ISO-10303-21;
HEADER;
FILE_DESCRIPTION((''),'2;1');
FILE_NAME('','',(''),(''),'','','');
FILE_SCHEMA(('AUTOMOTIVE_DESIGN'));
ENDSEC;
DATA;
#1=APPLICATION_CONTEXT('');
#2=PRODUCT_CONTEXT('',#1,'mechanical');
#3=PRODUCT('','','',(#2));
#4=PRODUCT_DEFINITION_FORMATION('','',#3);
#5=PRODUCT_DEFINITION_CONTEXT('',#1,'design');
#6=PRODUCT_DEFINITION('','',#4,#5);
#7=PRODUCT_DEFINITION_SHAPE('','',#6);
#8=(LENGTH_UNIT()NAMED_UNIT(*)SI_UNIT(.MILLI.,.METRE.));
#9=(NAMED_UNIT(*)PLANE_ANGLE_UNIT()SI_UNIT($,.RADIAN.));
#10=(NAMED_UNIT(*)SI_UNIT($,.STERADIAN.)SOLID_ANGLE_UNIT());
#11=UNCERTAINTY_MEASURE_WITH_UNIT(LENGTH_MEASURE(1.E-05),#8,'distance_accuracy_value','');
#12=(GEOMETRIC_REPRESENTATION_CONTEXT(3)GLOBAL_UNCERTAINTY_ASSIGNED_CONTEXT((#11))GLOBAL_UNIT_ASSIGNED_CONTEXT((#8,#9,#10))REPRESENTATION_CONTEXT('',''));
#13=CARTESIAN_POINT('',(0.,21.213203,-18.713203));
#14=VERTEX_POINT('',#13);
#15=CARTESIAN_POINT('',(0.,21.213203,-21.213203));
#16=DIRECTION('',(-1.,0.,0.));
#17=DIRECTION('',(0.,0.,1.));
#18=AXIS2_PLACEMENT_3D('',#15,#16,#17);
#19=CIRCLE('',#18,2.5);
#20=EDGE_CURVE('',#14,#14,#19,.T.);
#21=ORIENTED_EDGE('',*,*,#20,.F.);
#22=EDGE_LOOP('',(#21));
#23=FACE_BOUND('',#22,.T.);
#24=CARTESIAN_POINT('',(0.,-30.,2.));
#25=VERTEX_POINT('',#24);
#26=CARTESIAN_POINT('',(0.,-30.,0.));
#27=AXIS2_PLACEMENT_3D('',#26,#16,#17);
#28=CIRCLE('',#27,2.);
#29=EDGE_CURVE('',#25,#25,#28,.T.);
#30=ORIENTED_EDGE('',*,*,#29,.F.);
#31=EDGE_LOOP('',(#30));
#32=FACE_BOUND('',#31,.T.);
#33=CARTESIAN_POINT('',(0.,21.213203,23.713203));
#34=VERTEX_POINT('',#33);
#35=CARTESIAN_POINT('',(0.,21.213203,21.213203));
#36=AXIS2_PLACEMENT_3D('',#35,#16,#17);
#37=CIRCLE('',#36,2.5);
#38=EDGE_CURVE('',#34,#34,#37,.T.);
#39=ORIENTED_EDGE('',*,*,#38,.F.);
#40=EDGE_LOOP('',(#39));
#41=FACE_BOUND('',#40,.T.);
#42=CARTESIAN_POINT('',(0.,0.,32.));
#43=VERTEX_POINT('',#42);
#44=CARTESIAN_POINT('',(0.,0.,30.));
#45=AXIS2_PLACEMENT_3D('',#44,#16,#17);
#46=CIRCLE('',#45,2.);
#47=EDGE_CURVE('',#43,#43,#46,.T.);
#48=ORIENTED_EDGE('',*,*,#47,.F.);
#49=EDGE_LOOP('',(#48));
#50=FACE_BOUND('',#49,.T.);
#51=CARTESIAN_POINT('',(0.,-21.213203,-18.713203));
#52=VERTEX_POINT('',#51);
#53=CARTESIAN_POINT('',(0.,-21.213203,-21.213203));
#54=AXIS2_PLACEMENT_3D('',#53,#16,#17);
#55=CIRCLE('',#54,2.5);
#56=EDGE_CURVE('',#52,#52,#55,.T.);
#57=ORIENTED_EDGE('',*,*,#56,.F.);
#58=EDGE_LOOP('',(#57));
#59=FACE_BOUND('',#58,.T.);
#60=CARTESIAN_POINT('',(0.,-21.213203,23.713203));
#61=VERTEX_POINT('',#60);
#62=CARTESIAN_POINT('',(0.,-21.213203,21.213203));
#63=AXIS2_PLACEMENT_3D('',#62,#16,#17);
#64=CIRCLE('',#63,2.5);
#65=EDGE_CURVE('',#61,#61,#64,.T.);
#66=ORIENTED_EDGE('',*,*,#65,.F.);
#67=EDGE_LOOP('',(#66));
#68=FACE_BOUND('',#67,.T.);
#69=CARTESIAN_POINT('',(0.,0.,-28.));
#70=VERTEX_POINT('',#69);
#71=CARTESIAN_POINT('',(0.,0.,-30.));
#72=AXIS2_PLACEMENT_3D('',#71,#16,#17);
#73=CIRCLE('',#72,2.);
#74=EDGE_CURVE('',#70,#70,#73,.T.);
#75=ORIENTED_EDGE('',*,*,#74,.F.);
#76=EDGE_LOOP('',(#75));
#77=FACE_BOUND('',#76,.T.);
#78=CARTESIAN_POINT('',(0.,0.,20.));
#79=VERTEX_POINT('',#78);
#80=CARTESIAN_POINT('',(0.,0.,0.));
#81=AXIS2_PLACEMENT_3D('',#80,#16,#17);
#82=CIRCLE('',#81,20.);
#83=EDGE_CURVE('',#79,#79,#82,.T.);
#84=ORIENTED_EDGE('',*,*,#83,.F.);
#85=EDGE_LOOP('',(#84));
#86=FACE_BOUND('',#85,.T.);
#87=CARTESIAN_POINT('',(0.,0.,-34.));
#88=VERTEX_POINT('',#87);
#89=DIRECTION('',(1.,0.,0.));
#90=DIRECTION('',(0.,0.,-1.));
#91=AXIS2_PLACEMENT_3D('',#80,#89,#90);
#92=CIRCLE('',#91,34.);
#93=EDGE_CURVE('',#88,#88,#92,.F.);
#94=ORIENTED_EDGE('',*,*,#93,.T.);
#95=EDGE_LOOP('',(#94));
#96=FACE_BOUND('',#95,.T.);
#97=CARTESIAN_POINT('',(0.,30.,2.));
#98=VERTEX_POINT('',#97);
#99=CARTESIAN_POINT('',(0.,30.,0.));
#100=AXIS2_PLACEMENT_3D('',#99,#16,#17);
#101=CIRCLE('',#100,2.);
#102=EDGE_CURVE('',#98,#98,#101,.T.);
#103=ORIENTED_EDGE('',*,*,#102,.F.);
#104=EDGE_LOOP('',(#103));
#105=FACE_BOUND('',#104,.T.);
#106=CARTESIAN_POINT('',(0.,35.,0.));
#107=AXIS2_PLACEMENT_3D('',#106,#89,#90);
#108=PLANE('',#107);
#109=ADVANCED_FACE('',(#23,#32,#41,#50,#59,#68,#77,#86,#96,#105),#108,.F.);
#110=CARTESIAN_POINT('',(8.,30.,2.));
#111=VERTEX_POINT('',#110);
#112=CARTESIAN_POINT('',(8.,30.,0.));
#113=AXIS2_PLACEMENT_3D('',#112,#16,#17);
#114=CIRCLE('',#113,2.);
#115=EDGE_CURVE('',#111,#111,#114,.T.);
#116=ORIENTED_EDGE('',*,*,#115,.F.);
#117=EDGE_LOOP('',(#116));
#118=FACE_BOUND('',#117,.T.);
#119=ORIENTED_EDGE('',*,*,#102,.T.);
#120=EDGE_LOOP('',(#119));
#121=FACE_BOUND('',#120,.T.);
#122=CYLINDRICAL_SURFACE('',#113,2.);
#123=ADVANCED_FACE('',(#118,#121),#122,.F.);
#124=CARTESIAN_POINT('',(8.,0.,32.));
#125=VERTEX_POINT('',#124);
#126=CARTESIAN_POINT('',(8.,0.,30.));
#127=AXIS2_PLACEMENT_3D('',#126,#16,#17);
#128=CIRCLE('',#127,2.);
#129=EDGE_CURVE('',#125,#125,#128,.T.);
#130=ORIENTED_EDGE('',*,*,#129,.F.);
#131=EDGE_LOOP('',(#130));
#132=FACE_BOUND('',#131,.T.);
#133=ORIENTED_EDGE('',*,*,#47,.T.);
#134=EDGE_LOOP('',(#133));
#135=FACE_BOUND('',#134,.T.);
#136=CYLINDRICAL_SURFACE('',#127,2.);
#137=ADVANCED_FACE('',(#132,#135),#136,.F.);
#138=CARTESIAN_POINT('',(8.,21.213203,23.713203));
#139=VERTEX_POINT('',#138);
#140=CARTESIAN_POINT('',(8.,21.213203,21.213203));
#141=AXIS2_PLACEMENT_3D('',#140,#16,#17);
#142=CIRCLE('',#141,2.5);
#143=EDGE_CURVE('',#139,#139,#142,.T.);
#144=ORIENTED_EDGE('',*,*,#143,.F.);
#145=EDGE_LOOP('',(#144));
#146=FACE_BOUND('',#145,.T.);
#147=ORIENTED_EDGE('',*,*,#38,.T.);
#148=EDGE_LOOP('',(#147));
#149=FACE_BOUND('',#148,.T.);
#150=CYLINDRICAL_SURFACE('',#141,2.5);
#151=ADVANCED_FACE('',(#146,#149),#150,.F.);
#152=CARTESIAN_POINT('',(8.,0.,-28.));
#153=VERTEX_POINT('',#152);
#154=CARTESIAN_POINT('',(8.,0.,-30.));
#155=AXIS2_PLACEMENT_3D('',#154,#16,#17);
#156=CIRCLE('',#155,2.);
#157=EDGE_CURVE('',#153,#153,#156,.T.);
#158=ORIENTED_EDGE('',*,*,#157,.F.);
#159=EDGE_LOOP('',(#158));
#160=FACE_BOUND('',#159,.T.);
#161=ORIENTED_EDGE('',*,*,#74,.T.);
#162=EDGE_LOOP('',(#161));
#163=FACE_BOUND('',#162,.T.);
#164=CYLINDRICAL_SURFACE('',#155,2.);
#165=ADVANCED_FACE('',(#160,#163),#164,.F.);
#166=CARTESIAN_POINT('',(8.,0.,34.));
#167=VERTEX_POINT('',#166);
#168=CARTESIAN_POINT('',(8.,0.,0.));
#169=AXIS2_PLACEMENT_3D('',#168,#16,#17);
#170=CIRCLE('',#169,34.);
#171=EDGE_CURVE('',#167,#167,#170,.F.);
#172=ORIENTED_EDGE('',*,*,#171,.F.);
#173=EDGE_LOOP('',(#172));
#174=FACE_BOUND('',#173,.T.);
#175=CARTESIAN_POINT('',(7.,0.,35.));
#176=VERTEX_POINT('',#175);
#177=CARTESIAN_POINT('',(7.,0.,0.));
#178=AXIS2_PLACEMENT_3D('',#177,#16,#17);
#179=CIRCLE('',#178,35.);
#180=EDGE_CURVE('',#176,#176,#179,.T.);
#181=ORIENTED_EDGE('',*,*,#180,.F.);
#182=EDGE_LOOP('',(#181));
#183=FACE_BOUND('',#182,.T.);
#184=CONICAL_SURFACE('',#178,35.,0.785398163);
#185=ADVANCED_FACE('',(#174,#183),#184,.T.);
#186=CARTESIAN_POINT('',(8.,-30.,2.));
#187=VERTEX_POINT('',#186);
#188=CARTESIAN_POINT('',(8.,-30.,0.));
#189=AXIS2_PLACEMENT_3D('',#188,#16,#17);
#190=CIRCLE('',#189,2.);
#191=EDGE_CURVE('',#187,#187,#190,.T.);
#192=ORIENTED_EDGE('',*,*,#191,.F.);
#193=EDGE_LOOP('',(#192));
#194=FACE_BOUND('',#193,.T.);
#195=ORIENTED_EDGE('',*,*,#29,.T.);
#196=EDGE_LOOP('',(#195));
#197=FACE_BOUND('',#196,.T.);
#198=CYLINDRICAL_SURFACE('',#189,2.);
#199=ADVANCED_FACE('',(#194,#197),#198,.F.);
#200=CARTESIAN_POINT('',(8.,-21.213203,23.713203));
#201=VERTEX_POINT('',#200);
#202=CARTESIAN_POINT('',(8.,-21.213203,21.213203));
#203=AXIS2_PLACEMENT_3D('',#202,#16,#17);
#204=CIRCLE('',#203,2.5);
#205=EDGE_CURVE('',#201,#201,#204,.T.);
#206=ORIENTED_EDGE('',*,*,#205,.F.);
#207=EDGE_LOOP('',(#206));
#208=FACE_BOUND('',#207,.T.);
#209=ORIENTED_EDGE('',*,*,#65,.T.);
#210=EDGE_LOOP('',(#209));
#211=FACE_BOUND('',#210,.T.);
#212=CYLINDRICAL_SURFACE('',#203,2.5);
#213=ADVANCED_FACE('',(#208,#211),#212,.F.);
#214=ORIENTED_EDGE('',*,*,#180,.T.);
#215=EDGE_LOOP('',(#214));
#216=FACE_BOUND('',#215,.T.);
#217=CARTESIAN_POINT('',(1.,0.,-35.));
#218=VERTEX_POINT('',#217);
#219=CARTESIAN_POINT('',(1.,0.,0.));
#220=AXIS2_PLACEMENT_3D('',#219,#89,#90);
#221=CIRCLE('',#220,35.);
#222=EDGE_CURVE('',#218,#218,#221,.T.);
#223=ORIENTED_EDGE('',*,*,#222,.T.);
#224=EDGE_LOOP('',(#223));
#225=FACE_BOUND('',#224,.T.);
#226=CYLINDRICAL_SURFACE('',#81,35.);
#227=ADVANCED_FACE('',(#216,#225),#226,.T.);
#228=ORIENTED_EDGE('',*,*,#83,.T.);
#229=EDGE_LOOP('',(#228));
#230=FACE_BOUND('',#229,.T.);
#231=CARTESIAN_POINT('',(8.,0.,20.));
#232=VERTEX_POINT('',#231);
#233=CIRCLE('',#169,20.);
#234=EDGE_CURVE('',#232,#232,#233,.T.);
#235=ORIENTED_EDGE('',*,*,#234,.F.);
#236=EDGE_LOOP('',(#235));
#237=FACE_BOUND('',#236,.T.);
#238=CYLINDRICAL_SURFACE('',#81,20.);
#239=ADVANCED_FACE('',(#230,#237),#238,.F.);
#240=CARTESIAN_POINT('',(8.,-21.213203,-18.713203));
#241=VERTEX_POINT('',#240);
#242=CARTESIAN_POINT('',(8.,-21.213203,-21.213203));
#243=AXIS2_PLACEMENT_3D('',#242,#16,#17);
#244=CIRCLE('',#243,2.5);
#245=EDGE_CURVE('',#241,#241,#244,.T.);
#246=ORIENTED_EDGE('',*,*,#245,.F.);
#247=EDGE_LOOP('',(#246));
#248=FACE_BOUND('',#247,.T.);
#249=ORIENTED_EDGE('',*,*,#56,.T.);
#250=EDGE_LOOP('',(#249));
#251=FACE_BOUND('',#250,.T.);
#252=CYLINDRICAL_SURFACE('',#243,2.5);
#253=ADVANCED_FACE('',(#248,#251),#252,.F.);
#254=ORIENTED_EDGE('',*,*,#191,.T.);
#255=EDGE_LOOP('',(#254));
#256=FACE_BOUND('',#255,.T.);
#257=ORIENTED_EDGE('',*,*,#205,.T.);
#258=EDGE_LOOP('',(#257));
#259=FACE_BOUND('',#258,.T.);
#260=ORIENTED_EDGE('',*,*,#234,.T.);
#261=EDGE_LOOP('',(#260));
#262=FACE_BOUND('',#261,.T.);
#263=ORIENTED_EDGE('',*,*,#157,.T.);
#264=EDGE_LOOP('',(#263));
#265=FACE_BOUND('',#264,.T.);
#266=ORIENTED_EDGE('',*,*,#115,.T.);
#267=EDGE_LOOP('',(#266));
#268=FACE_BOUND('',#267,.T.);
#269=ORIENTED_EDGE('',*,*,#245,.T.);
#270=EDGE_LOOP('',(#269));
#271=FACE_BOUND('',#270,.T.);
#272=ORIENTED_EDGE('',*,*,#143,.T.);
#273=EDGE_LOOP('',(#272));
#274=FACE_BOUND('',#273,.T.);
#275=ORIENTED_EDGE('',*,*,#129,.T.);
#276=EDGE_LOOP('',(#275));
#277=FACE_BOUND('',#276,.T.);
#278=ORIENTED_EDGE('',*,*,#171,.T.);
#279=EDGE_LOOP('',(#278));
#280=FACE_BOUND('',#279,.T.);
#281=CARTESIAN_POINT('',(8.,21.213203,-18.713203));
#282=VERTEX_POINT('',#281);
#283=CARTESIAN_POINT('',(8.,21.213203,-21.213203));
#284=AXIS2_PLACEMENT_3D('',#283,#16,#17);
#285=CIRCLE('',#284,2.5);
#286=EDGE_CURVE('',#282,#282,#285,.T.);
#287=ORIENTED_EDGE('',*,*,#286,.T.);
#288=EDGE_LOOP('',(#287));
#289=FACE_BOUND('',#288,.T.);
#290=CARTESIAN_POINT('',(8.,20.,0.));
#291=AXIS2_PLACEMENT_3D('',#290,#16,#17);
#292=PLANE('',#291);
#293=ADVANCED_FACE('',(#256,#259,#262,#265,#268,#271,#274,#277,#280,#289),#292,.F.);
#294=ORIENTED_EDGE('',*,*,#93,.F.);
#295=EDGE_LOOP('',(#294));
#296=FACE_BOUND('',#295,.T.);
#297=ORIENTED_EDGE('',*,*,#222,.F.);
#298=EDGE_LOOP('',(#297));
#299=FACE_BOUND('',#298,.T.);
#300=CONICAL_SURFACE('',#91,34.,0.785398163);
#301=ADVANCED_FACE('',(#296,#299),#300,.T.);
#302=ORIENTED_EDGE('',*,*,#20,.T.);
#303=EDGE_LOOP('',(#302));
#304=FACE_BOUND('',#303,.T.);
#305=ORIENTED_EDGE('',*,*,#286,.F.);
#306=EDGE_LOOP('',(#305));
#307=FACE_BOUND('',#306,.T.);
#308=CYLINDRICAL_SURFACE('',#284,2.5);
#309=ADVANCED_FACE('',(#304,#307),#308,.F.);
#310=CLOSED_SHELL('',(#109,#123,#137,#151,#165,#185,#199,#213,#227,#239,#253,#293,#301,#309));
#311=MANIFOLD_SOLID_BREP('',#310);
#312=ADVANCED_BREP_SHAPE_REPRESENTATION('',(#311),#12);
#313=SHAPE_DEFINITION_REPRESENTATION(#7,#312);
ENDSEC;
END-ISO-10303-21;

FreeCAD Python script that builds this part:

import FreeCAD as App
import Part
import Sketcher

V = App.Vector


def edges_at(feature, points):
    """Names of the edges that pass closest to the given points."""
    edges = feature.Shape.Edges
    near = lambda p: min(range(len(edges)), key=lambda i: edges[i].distToShape(Part.Vertex(*p))[0])
    return sorted({f"Edge{near(p) + 1}" for p in points})


def add_polygon(sketch, points):
    """Adds a closed chain of lines whose ends are joined by coincident constraints."""
    first, n = sketch.GeometryCount, len(points)
    for a, b in zip(points, points[1:] + points[:1]):
        sketch.addGeometry(Part.LineSegment(App.Vector(*a, 0), App.Vector(*b, 0)), False)
    for i in range(n):
        sketch.addConstraint(Sketcher.Constraint("Coincident", first + i, 2, first + (i + 1) % n, 1))

doc = App.newDocument("Part")
body = doc.addObject("PartDesign::Body", "Body")

# Sketch on XY plane
sketch1 = body.newObject("Sketcher::SketchObject", "Sketch")
sketch1.AttachmentSupport = (doc.getObject("XY_Plane"), [""])
sketch1.MapMode = "FlatFace"
add_polygon(sketch1, [(0, 35), (0, 20), (8, 20), (8, 35)])  # lines 0-3
sketch1.addConstraint([
    Sketcher.Constraint("Vertical", 0),
    Sketcher.Constraint("Horizontal", 1),
    Sketcher.Constraint("Vertical", 2),
    Sketcher.Constraint("Horizontal", 3),
    Sketcher.Constraint("PointOnObject", 0, 2, -2),
    Sketcher.Constraint("DistanceX", 1, 1, 1, 2, 8.0),
    Sketcher.Constraint("DistanceY", 0, 2, 0, 1, 15.0),
    Sketcher.Constraint("DistanceY", -1, 1, 0, 2, 20.0),
])
revolution = body.newObject("PartDesign::Revolution", "Revolution")
revolution.Profile = sketch1
revolution.ReferenceAxis = (sketch1, ["H_Axis"])
revolution.Angle = 360
doc.recompute()

chamfer = body.newObject("PartDesign::Chamfer", "Chamfer")
chamfer.Base = (revolution, edges_at(revolution, [(0, 0, -35), (8, 0, -35)]))
chamfer.Size = 1

# Sketch on YZ plane
sketch2 = body.newObject("Sketcher::SketchObject", "Sketch001")
sketch2.AttachmentSupport = (doc.getObject("YZ_Plane"), [""])
sketch2.MapMode = "FlatFace"
sketch2.addGeometry([
    Part.Circle(V(30, 0, 0), V(0, 0, 1), 2),  # 0
    Part.Circle(V(21.2, 21.2, 0), V(0, 0, 1), 2.5),  # 1
    Part.Circle(V(0, 30, 0), V(0, 0, 1), 2),  # 2
    Part.Circle(V(-21.2, 21.2, 0), V(0, 0, 1), 2.5),  # 3
    Part.Circle(V(-30, 0, 0), V(0, 0, 1), 2),  # 4
    Part.Circle(V(-21.2, -21.2, 0), V(0, 0, 1), 2.5),  # 5
    Part.Circle(V(0, -30, 0), V(0, 0, 1), 2),  # 6
    Part.Circle(V(21.2, -21.2, 0), V(0, 0, 1), 2.5),  # 7
], False)
sketch2.addConstraint([
    Sketcher.Constraint("Equal", 0, 2),
    Sketcher.Constraint("Equal", 1, 3),
    Sketcher.Constraint("Equal", 2, 4),
    Sketcher.Constraint("Equal", 3, 5),
    Sketcher.Constraint("Equal", 4, 6),
    Sketcher.Constraint("Equal", 5, 7),
    Sketcher.Constraint("Symmetric", 0, 3, 4, 3, -1, 1),
    Sketcher.Constraint("Symmetric", 1, 3, 5, 3, -1, 1),
    Sketcher.Constraint("Symmetric", 2, 3, 6, 3, -1, 1),
    Sketcher.Constraint("Symmetric", 3, 3, 7, 3, -1, 1),
    Sketcher.Constraint("Symmetric", 1, 3, 3, 3, -2),
    Sketcher.Constraint("PointOnObject", 0, 3, -1),
    Sketcher.Constraint("PointOnObject", 2, 3, -2),
    Sketcher.Constraint("Diameter", 0, 4.0),
    Sketcher.Constraint("Diameter", 1, 5.0),
    Sketcher.Constraint("DistanceX", -1, 1, 0, 3, 30.0),
    Sketcher.Constraint("DistanceY", -1, 1, 2, 3, 30.0),
    Sketcher.Constraint("DistanceX", -1, 1, 1, 3, 21.213203),
    Sketcher.Constraint("DistanceY", -1, 1, 1, 3, 21.213203),
])
pocket1 = body.newObject("PartDesign::Pocket", "Pocket")
pocket1.Profile = sketch2
pocket1.Type = "ThroughAll"
pocket1.Reversed = True

doc.recompute()
